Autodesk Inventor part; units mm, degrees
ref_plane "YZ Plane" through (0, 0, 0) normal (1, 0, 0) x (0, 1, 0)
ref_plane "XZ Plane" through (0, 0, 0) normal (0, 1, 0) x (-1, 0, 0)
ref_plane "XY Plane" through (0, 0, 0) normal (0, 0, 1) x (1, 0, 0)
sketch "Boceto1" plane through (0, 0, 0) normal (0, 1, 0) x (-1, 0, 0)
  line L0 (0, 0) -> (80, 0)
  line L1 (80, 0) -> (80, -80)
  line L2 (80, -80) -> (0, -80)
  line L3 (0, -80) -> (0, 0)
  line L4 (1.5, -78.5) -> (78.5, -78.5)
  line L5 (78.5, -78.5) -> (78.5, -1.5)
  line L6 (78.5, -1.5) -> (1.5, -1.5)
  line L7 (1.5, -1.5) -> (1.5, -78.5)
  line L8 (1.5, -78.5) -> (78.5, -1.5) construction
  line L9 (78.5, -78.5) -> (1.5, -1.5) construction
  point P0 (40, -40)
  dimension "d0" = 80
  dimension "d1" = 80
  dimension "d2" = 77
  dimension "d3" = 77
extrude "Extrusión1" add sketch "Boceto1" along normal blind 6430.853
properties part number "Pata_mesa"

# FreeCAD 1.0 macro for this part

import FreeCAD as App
import Part
import Sketcher

V = App.Vector

doc = App.newDocument("Part")
body = doc.addObject("PartDesign::Body", "Body")

# Sketch on XZ plane
sketch1 = doc.addObject("Sketcher::SketchObject", "Sketch")
body.addObject(sketch1)
sketch1.AttachmentSupport = (doc.XZ_Plane, [""])
sketch1.MapMode = "FlatFace"
sketch1.addGeometry([
    Part.LineSegment(V(-80, 0, 0), V(0, 0, 0)),  # 0
    Part.LineSegment(V(0, 0, 0), V(0, -80, 0)),  # 1
    Part.LineSegment(V(0, -80, 0), V(-80, -80, 0)),  # 2
    Part.LineSegment(V(-80, -80, 0), V(-80, 0, 0)),  # 3
    Part.LineSegment(V(-78, -78, 0), V(-2, -78, 0)),  # 4
    Part.LineSegment(V(-2, -78, 0), V(-2, -2, 0)),  # 5
    Part.LineSegment(V(-2, -2, 0), V(-78, -2, 0)),  # 6
    Part.LineSegment(V(-78, -2, 0), V(-78, -78, 0)),  # 7
], False)
sketch1.addConstraint([
    Sketcher.Constraint("Coincident", 0, 2, 1, 1),
    Sketcher.Constraint("Coincident", 1, 2, 2, 1),
    Sketcher.Constraint("Coincident", 2, 2, 3, 1),
    Sketcher.Constraint("Coincident", 3, 2, 0, 1),
    Sketcher.Constraint("Coincident", 4, 2, 5, 1),
    Sketcher.Constraint("Coincident", 5, 2, 6, 1),
    Sketcher.Constraint("Coincident", 6, 2, 7, 1),
    Sketcher.Constraint("Coincident", 7, 2, 4, 1),
    Sketcher.Constraint("Horizontal", 0),
    Sketcher.Constraint("Vertical", 1),
    Sketcher.Constraint("Horizontal", 2),
    Sketcher.Constraint("Vertical", 3),
    Sketcher.Constraint("Horizontal", 4),
    Sketcher.Constraint("Vertical", 5),
    Sketcher.Constraint("Horizontal", 6),
    Sketcher.Constraint("Vertical", 7),
    Sketcher.Constraint("Coincident", 0, 2, -1, 1),
    Sketcher.Constraint("Equal", 2, 1),
    Sketcher.Constraint("Equal", 6, 5),
    Sketcher.Constraint("DistanceX", 0, 1, 0, 2, 80.0),
    Sketcher.Constraint("DistanceX", 4, 1, 4, 2, 77.0),
    Sketcher.Constraint("DistanceX", 4, 2, -1, 1, 1.5),
    Sketcher.Constraint("DistanceY", 4, 2, -1, 1, 78.5),
])
pad1 = doc.addObject("PartDesign::Pad", "Pad")
body.addObject(pad1)
pad1.Profile = sketch1
pad1.Length = 6430.853
pad1.Reversed = True

doc.recompute()
